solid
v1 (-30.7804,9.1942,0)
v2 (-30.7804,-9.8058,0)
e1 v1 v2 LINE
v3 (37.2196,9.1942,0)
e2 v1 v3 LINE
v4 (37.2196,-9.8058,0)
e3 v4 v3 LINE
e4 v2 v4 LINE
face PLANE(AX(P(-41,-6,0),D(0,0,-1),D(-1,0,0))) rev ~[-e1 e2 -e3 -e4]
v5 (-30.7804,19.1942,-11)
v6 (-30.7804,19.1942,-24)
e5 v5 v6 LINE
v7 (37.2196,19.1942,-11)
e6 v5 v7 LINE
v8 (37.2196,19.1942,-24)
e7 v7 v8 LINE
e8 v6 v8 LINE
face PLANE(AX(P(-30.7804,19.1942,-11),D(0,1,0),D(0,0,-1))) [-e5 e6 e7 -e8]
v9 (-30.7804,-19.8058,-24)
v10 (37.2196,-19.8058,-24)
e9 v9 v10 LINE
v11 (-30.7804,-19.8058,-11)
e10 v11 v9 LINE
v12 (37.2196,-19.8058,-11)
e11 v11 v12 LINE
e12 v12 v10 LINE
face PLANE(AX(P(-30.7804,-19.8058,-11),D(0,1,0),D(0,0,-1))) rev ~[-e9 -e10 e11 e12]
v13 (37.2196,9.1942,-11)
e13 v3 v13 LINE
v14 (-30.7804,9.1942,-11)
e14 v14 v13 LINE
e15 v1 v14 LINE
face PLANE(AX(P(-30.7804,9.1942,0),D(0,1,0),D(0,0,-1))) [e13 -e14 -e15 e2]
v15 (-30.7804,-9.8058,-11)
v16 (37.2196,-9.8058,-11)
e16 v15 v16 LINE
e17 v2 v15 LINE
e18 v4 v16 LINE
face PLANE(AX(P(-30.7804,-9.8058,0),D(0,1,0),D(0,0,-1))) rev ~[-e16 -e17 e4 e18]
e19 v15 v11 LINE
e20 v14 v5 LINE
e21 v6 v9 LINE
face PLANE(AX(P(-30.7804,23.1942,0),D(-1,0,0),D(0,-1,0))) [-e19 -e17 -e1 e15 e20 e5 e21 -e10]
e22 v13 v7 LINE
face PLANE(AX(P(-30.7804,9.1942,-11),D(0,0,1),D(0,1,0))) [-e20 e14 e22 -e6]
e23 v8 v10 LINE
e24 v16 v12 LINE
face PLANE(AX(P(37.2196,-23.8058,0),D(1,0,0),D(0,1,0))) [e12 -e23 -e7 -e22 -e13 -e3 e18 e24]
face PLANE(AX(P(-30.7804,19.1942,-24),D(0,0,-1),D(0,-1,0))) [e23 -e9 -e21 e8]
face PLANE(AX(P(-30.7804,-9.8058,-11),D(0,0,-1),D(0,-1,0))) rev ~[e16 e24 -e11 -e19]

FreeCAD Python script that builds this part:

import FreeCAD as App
import Part
import Sketcher

V = App.Vector

doc = App.newDocument("Part")
body = doc.addObject("PartDesign::Body", "Body")

# Sketch on XY plane
sketch1 = body.newObject("Sketcher::SketchObject", "Sketch")
sketch1.AttachmentSupport = (doc.getObject("XY_Plane"), [""])
sketch1.MapMode = "FlatFace"
sketch1.addGeometry([
    Part.LineSegment(V(37.2196, -23.8058, 0), V(-30.7804, -23.8058, 0)),
    Part.LineSegment(V(-30.7804, -23.8058, 0), V(-30.7804, 23.1942, 0)),
    Part.LineSegment(V(-30.7804, 23.1942, 0), V(37.2196, 23.1942, 0)),
    Part.LineSegment(V(37.2196, 23.1942, 0), V(37.2196, -23.8058, 0)),
], False)
sketch1.addConstraint([
    Sketcher.Constraint("Coincident", 0, 2, 1, 1),
    Sketcher.Constraint("Coincident", 1, 2, 2, 1),
    Sketcher.Constraint("Coincident", 2, 2, 3, 1),
    Sketcher.Constraint("Coincident", 3, 2, 0, 1),
    Sketcher.Constraint("Horizontal", 0),
    Sketcher.Constraint("Vertical", 1),
    Sketcher.Constraint("Horizontal", 2),
    Sketcher.Constraint("Vertical", 3),
    Sketcher.Constraint("DistanceX", 0, 2, 0, 1, 68.0),
    Sketcher.Constraint("DistanceY", 1, 1, 1, 2, 47.0),
    Sketcher.Constraint("DistanceX", 0, 2, -1, 1, 30.7804),
    Sketcher.Constraint("DistanceY", 0, 2, -1, 1, 23.8058),
])
pad1 = body.newObject("PartDesign::Pad", "Pad")
pad1.Profile = sketch1
pad1.Length = 30
pad1.Reversed = True

# Sketch on YZ plane
sketch2 = body.newObject("Sketcher::SketchObject", "Sketch001")
sketch2.AttachmentSupport = (doc.getObject("YZ_Plane"), [""])
sketch2.MapMode = "FlatFace"
sketch2.AttachmentOffset = App.Placement(V(0, 0, -30.7804), App.Rotation())
sketch2.addGeometry([
    Part.LineSegment(V(9.1942, 0, 0), V(23.1942, 0, 0)),  # 0
    Part.LineSegment(V(23.1942, 0, 0), V(23.1942, -30, 0)),  # 1
    Part.LineSegment(V(23.1942, -30, 0), V(-23.8058, -30, 0)),  # 2
    Part.LineSegment(V(-23.8058, -30, 0), V(-23.8058, 0, 0)),  # 3
    Part.LineSegment(V(-23.8058, 0, 0), V(-9.8058, 0, 0)),  # 4
    Part.LineSegment(V(-9.8058, 0, 0), V(-9.8058, -11, 0)),  # 5
    Part.LineSegment(V(-9.8058, -11, 0), V(-19.8058, -11, 0)),  # 6
    Part.LineSegment(V(-19.8058, -11, 0), V(-19.8058, -24, 0)),  # 7
    Part.LineSegment(V(-19.8058, -24, 0), V(19.1942, -24, 0)),  # 8
    Part.LineSegment(V(19.1942, -24, 0), V(19.1942, -11, 0)),  # 9
    Part.LineSegment(V(19.1942, -11, 0), V(9.1942, -11, 0)),  # 10
    Part.LineSegment(V(9.1942, -11, 0), V(9.1942, 0, 0)),  # 11
], False)
sketch2.addConstraint([
    Sketcher.Constraint("Coincident", 0, 2, 1, 1),
    Sketcher.Constraint("Coincident", 1, 2, 2, 1),
    Sketcher.Constraint("Coincident", 2, 2, 3, 1),
    Sketcher.Constraint("Coincident", 3, 2, 4, 1),
    Sketcher.Constraint("Coincident", 4, 2, 5, 1),
    Sketcher.Constraint("Coincident", 5, 2, 6, 1),
    Sketcher.Constraint("Coincident", 6, 2, 7, 1),
    Sketcher.Constraint("Coincident", 7, 2, 8, 1),
    Sketcher.Constraint("Coincident", 8, 2, 9, 1),
    Sketcher.Constraint("Coincident", 9, 2, 10, 1),
    Sketcher.Constraint("Coincident", 10, 2, 11, 1),
    Sketcher.Constraint("Coincident", 11, 2, 0, 1),
    Sketcher.Constraint("Horizontal", 0),
    Sketcher.Constraint("Vertical", 1),
    Sketcher.Constraint("Horizontal", 2),
    Sketcher.Constraint("Vertical", 3),
    Sketcher.Constraint("Horizontal", 4),
    Sketcher.Constraint("Vertical", 5),
    Sketcher.Constraint("Horizontal", 6),
    Sketcher.Constraint("Vertical", 7),
    Sketcher.Constraint("Horizontal", 8),
    Sketcher.Constraint("Vertical", 9),
    Sketcher.Constraint("Horizontal", 10),
    Sketcher.Constraint("Vertical", 11),
    Sketcher.Constraint("PointOnObject", 0, 2, -1),
    Sketcher.Constraint("PointOnObject", 3, 2, -1),
    Sketcher.Constraint("Horizontal", 6, 2, 9, 2),
    Sketcher.Constraint("Equal", 0, 4),
    Sketcher.Constraint("Equal", 6, 10),
    Sketcher.Constraint("DistanceX", 0, 1, 0, 2, 14.0),
    Sketcher.Constraint("DistanceX", 6, 2, 6, 1, 10.0),
    Sketcher.Constraint("DistanceY", 5, 2, 5, 1, 11.0),
    Sketcher.Constraint("DistanceY", 7, 2, 7, 1, 13.0),
    Sketcher.Constraint("DistanceX", 2, 2, 2, 1, 47.0),
    Sketcher.Constraint("DistanceY", 1, 2, 1, 1, 30.0),
    Sketcher.Constraint("DistanceX", -1, 1, 0, 2, 23.1942),
])
pocket1 = body.newObject("PartDesign::Pocket", "Pocket")
pocket1.Profile = sketch2
pocket1.Length = 68
pocket1.Reversed = True

doc.recompute()
